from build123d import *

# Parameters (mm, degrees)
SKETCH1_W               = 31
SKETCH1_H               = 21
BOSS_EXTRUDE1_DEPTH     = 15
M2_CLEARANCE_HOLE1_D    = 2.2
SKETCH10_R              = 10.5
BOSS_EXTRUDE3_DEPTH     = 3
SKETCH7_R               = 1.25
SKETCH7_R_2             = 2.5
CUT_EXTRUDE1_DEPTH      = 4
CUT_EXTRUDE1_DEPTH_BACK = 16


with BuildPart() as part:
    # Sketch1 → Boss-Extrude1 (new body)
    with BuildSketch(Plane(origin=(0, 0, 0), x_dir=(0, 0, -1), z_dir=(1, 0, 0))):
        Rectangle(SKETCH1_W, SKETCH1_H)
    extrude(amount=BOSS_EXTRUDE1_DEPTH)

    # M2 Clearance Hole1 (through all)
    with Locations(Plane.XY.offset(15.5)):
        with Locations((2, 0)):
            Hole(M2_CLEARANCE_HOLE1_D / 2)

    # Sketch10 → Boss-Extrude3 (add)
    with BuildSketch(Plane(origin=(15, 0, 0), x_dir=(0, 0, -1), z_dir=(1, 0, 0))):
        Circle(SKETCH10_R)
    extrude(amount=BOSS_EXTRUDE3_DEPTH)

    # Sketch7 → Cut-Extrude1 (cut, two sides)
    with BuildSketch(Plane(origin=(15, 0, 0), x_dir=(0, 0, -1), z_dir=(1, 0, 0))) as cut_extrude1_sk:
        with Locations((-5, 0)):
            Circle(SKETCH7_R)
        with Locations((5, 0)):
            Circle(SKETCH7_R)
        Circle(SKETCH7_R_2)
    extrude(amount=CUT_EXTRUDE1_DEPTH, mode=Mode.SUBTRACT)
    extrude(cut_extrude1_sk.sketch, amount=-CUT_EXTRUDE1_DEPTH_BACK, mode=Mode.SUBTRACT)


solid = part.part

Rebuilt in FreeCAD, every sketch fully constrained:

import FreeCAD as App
import Part
import Sketcher
from FreeCAD import Vector


def add_polygon(sketch, points):
    """Adds a closed chain of lines whose ends are joined by coincident constraints."""
    first, n = sketch.GeometryCount, len(points)
    for a, b in zip(points, points[1:] + points[:1]):
        sketch.addGeometry(Part.LineSegment(App.Vector(*a, 0), App.Vector(*b, 0)), False)
    for i in range(n):
        sketch.addConstraint(Sketcher.Constraint("Coincident", first + i, 2, first + (i + 1) % n, 1))

doc = App.newDocument("Part")
body = doc.addObject("PartDesign::Body", "Body")

# Sketch on YZ plane
sketch1 = body.newObject("Sketcher::SketchObject", "Sketch")
sketch1.AttachmentSupport = (doc.getObject("YZ_Plane"), [""])
sketch1.MapMode = "FlatFace"
add_polygon(sketch1, [(10, 16), (-10, 16), (-10, -16), (10, -16)])  # lines 0-3
sketch1.addConstraint(Sketcher.Constraint("Horizontal", 0))
sketch1.addConstraint(Sketcher.Constraint("Vertical", 1))
sketch1.addConstraint(Sketcher.Constraint("Horizontal", 2))
sketch1.addConstraint(Sketcher.Constraint("Vertical", 3))
sketch1.addConstraint(Sketcher.Constraint("Symmetric", 0, 2, 2, 2, -1, 1))
sketch1.addConstraint(Sketcher.Constraint("DistanceX", 0, 2, 0, 1, 21.0))
sketch1.addConstraint(Sketcher.Constraint("DistanceY", 1, 2, 1, 1, 31.0))
pad1 = body.newObject("PartDesign::Pad", "Pad")
pad1.Profile = sketch1
pad1.Length = 15

# Sketch on XY plane
sketch2 = body.newObject("Sketcher::SketchObject", "Sketch001")
sketch2.AttachmentSupport = (doc.getObject("XY_Plane"), [""])
sketch2.MapMode = "FlatFace"
sketch2.AttachmentOffset = App.Placement(Vector(0, 0, 15.5), App.Rotation())
sketch2.addGeometry(Part.Circle(Vector(2, 0, 0), Vector(0, 0, 1), 1.1), False)
sketch2.addConstraint(Sketcher.Constraint("PointOnObject", 0, 3, -1))
sketch2.addConstraint(Sketcher.Constraint("Diameter", 0, 2.2))
sketch2.addConstraint(Sketcher.Constraint("DistanceX", -1, 1, 0, 3, 2.0))
doc.recompute()
hole = body.newObject("PartDesign::Hole", "Hole")
hole.Profile = sketch2
hole.ThreadType = "None"
hole.Diameter = 2.2
hole.DepthType = "ThroughAll"

# Sketch on YZ plane
sketch3 = body.newObject("Sketcher::SketchObject", "Sketch002")
sketch3.AttachmentSupport = (doc.getObject("YZ_Plane"), [""])
sketch3.MapMode = "FlatFace"
sketch3.AttachmentOffset = App.Placement(Vector(0, 0, 15), App.Rotation())
sketch3.addGeometry(Part.Circle(Vector(0, 0, 0), Vector(0, 0, 1), 10), False)
sketch3.addConstraint(Sketcher.Constraint("Coincident", 0, 3, -1, 1))
sketch3.addConstraint(Sketcher.Constraint("Diameter", 0, 21.0))
pad2 = body.newObject("PartDesign::Pad", "Pad001")
pad2.Profile = sketch3
pad2.Length = 3

# Sketch on YZ plane
sketch4 = body.newObject("Sketcher::SketchObject", "Sketch003")
sketch4.AttachmentSupport = (doc.getObject("YZ_Plane"), [""])
sketch4.MapMode = "FlatFace"
sketch4.AttachmentOffset = App.Placement(Vector(0, 0, 15), App.Rotation())
sketch4.addGeometry(Part.Circle(Vector(0, 5, 0), Vector(0, 0, 1), 1.2), False)
sketch4.addGeometry(Part.Circle(Vector(0, -5, 0), Vector(0, 0, 1), 1.2), False)
sketch4.addGeometry(Part.Circle(Vector(0, 0, 0), Vector(0, 0, 1), 2.5), False)
sketch4.addConstraint(Sketcher.Constraint("Coincident", 2, 3, -1, 1))
sketch4.addConstraint(Sketcher.Constraint("Equal", 0, 1))
sketch4.addConstraint(Sketcher.Constraint("Symmetric", 0, 3, 1, 3, -1, 1))
sketch4.addConstraint(Sketcher.Constraint("PointOnObject", 0, 3, -2))
sketch4.addConstraint(Sketcher.Constraint("Diameter", 2, 5.0))
sketch4.addConstraint(Sketcher.Constraint("Diameter", 0, 2.5))
sketch4.addConstraint(Sketcher.Constraint("DistanceY", -1, 1, 0, 3, 5.0))
pocket1 = body.newObject("PartDesign::Pocket", "Pocket")
pocket1.Profile = sketch4
pocket1.Type = "ThroughAll"
pocket1.Midplane = True

doc.recompute()
